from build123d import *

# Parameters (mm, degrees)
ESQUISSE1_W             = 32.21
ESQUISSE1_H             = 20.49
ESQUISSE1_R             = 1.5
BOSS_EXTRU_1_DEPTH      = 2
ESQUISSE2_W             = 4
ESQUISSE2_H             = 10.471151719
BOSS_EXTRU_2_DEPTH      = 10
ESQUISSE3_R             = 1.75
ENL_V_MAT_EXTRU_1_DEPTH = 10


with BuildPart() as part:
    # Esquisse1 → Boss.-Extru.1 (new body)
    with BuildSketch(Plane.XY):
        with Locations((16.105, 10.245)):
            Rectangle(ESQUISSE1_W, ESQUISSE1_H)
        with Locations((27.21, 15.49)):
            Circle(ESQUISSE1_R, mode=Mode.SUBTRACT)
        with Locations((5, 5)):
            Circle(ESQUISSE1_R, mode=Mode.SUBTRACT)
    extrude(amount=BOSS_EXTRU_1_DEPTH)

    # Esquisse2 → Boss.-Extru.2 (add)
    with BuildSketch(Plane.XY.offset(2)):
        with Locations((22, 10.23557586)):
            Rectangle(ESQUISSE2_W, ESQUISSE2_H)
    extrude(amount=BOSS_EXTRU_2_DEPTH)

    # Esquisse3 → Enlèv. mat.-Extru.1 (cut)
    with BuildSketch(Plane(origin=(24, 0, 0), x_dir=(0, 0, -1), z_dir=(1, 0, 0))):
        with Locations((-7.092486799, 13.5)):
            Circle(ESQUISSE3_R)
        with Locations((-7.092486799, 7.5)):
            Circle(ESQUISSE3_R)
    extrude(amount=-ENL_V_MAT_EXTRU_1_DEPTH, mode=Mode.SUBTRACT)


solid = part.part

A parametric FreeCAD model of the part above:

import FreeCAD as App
import Part
import Sketcher

V = App.Vector


def add_polygon(sketch, points):
    """Adds a closed chain of lines whose ends are joined by coincident constraints."""
    first, n = sketch.GeometryCount, len(points)
    for a, b in zip(points, points[1:] + points[:1]):
        sketch.addGeometry(Part.LineSegment(App.Vector(*a, 0), App.Vector(*b, 0)), False)
    for i in range(n):
        sketch.addConstraint(Sketcher.Constraint("Coincident", first + i, 2, first + (i + 1) % n, 1))

doc = App.newDocument("Part")
body = doc.addObject("PartDesign::Body", "Body")

# Sketch on XY plane
sketch1 = body.newObject("Sketcher::SketchObject", "Sketch")
sketch1.AttachmentSupport = (doc.getObject("XY_Plane"), [""])
sketch1.MapMode = "FlatFace"
add_polygon(sketch1, [(0, 20.49), (0, 0), (32.21, 0), (32.21, 20.49)])  # lines 0-3
sketch1.addGeometry(Part.Circle(V(5, 5, 0), V(0, 0, 1), 1.5), False)  # 4
sketch1.addGeometry(Part.Circle(V(27.21, 15.49, 0), V(0, 0, 1), 1.5), False)  # 5
sketch1.addConstraint([
    Sketcher.Constraint("Vertical", 0),
    Sketcher.Constraint("Horizontal", 1),
    Sketcher.Constraint("Vertical", 2),
    Sketcher.Constraint("Horizontal", 3),
    Sketcher.Constraint("Coincident", 0, 2, -1, 1),
    Sketcher.Constraint("Equal", 4, 5),
    Sketcher.Constraint("Diameter", 4, 3.0),
    Sketcher.Constraint("DistanceX", -1, 1, 4, 3, 5.0),
    Sketcher.Constraint("DistanceY", -1, 1, 4, 3, 5.0),
    Sketcher.Constraint("DistanceX", 5, 3, 1, 2, 5.0),
    Sketcher.Constraint("DistanceY", 5, 3, 2, 2, 5.0),
    Sketcher.Constraint("DistanceX", 1, 1, 1, 2, 32.21),
    Sketcher.Constraint("DistanceY", 0, 2, 0, 1, 20.49),
])
pad1 = body.newObject("PartDesign::Pad", "Pad")
pad1.Profile = sketch1
pad1.Length = 2

# Sketch on XY plane
sketch2 = body.newObject("Sketcher::SketchObject", "Sketch001")
sketch2.AttachmentSupport = (doc.getObject("XY_Plane"), [""])
sketch2.MapMode = "FlatFace"
sketch2.AttachmentOffset = App.Placement(V(0, 0, 2), App.Rotation())
add_polygon(sketch2, [(20, 15.471152), (20, 5), (24, 5), (24, 15.471152)])  # lines 0-3
sketch2.addConstraint([
    Sketcher.Constraint("Vertical", 0),
    Sketcher.Constraint("Horizontal", 1),
    Sketcher.Constraint("Vertical", 2),
    Sketcher.Constraint("Horizontal", 3),
    Sketcher.Constraint("DistanceX", 1, 1, 1, 2, 4.0),
    Sketcher.Constraint("DistanceX", -1, 1, 0, 2, 20.0),
    Sketcher.Constraint("DistanceY", -1, 1, 0, 2, 5.0),
    Sketcher.Constraint("DistanceY", 0, 2, 0, 1, 10.471152),
])
pad2 = body.newObject("PartDesign::Pad", "Pad001")
pad2.Profile = sketch2
pad2.Length = 10

# Sketch on YZ plane
sketch3 = body.newObject("Sketcher::SketchObject", "Sketch002")
sketch3.AttachmentSupport = (doc.getObject("YZ_Plane"), [""])
sketch3.MapMode = "FlatFace"
sketch3.AttachmentOffset = App.Placement(V(0, 0, 24), App.Rotation())
sketch3.addGeometry([
    Part.Circle(V(13.5, 7.092487, 0), V(0, 0, 1), 1.75),
    Part.Circle(V(7.5, 7.092487, 0), V(0, 0, 1), 1.75),
], False)
sketch3.addConstraint([
    Sketcher.Constraint("Equal", 0, 1),
    Sketcher.Constraint("Horizontal", 0, 3, 1, 3),
    Sketcher.Constraint("Diameter", 0, 3.5),
    Sketcher.Constraint("DistanceX", 1, 3, 0, 3, 6.0),
    Sketcher.Constraint("DistanceX", -1, 1, 0, 3, 13.5),
    Sketcher.Constraint("DistanceY", -1, 1, 0, 3, 7.092487),
])
pocket1 = body.newObject("PartDesign::Pocket", "Pocket")
pocket1.Profile = sketch3
pocket1.Length = 10

doc.recompute()
